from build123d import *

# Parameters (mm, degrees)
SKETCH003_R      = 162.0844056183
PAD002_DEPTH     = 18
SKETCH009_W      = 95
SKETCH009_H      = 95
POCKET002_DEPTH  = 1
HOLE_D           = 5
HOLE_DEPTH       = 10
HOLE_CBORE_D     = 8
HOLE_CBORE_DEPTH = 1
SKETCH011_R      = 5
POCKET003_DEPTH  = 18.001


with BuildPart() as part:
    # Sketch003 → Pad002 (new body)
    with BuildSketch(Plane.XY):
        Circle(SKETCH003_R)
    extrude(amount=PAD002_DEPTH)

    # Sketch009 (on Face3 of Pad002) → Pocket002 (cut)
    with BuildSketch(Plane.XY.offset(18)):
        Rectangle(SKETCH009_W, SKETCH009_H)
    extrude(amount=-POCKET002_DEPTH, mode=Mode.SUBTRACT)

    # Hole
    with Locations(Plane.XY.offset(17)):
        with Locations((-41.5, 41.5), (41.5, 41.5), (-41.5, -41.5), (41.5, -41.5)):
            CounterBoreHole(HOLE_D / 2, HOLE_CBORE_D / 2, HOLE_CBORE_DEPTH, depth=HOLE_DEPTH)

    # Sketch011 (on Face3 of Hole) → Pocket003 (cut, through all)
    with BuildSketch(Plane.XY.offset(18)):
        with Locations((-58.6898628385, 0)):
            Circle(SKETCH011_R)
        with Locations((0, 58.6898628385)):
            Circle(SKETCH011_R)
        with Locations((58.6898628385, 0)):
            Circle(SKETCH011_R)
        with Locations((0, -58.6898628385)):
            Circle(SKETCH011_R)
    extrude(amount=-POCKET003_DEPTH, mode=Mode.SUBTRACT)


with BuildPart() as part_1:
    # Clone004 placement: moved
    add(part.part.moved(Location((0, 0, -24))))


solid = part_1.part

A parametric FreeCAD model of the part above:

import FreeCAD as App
import Part
import Sketcher

doc = App.newDocument("Part")
body = doc.addObject("PartDesign::Body", "Body")

# Sketch on XY plane
sketch1 = body.newObject("Sketcher::SketchObject", "Sketch")
sketch1.AttachmentSupport = (doc.getObject("XY_Plane"), [""])
sketch1.MapMode = "FlatFace"
sketch1.addGeometry(Part.Circle(App.Vector(0, 0, 0), App.Vector(0, 0, 1), 162.084406), False)
sketch1.addConstraint([
    Sketcher.Constraint("Coincident", 0, 3, -1, 1),
    Sketcher.Constraint("Diameter", 0, 324.168811),
])
pad1 = body.newObject("PartDesign::Pad", "Pad")
pad1.Profile = sketch1
pad1.Length = 18

# Sketch on XY plane
sketch2 = body.newObject("Sketcher::SketchObject", "Sketch001")
sketch2.AttachmentSupport = (doc.getObject("XY_Plane"), [""])
sketch2.MapMode = "FlatFace"
sketch2.AttachmentOffset = App.Placement(App.Vector(0, 0, 18), App.Rotation())
sketch2.addGeometry([
    Part.LineSegment(App.Vector(-47.5, 47.5, 0), App.Vector(-47.5, -47.5, 0)),
    Part.LineSegment(App.Vector(-47.5, -47.5, 0), App.Vector(47.5, -47.5, 0)),
    Part.LineSegment(App.Vector(47.5, -47.5, 0), App.Vector(47.5, 47.5, 0)),
    Part.LineSegment(App.Vector(47.5, 47.5, 0), App.Vector(-47.5, 47.5, 0)),
], False)
sketch2.addConstraint([
    Sketcher.Constraint("Coincident", 0, 2, 1, 1),
    Sketcher.Constraint("Coincident", 1, 2, 2, 1),
    Sketcher.Constraint("Coincident", 2, 2, 3, 1),
    Sketcher.Constraint("Coincident", 3, 2, 0, 1),
    Sketcher.Constraint("Vertical", 0),
    Sketcher.Constraint("Horizontal", 1),
    Sketcher.Constraint("Vertical", 2),
    Sketcher.Constraint("Horizontal", 3),
    Sketcher.Constraint("Symmetric", 0, 2, 2, 2, -1, 1),
    Sketcher.Constraint("Equal", 3, 0),
    Sketcher.Constraint("DistanceX", 1, 1, 1, 2, 95.0),
])
pocket1 = body.newObject("PartDesign::Pocket", "Pocket")
pocket1.Profile = sketch2
pocket1.Length = 1

# Sketch on XY plane
sketch3 = body.newObject("Sketcher::SketchObject", "Sketch002")
sketch3.AttachmentSupport = (doc.getObject("XY_Plane"), [""])
sketch3.MapMode = "FlatFace"
sketch3.AttachmentOffset = App.Placement(App.Vector(0, 0, 17), App.Rotation())
sketch3.addGeometry([
    Part.Circle(App.Vector(-41.5, 41.5, 0), App.Vector(0, 0, 1), 2.5),
    Part.Circle(App.Vector(41.5, 41.5, 0), App.Vector(0, 0, 1), 2.5),
    Part.Circle(App.Vector(-41.5, -41.5, 0), App.Vector(0, 0, 1), 2.5),
    Part.Circle(App.Vector(41.5, -41.5, 0), App.Vector(0, 0, 1), 2.5),
], False)
sketch3.addConstraint([
    Sketcher.Constraint("Equal", 0, 1),
    Sketcher.Constraint("Equal", 1, 2),
    Sketcher.Constraint("Equal", 2, 3),
    Sketcher.Constraint("Symmetric", 1, 3, 2, 3, -1, 1),
    Sketcher.Constraint("Symmetric", 0, 3, 3, 3, -1, 1),
    Sketcher.Constraint("Symmetric", 0, 3, 1, 3, -2),
    Sketcher.Constraint("Diameter", 0, 5.0),
    Sketcher.Constraint("DistanceX", 0, 3, 1, 3, 83.0),
    Sketcher.Constraint("DistanceY", 2, 3, 0, 3, 83.0),
])
doc.recompute()
hole = body.newObject("PartDesign::Hole", "Hole")
hole.Profile = sketch3
hole.ThreadType = "None"
hole.Diameter = 5
hole.DepthType = "Dimension"
hole.Depth = 10
hole.DrillPoint = "Flat"
hole.HoleCutType = "Counterbore"
hole.HoleCutDiameter = 8
hole.HoleCutDepth = 1

# Sketch on XY plane
sketch4 = body.newObject("Sketcher::SketchObject", "Sketch003")
sketch4.AttachmentSupport = (doc.getObject("XY_Plane"), [""])
sketch4.MapMode = "FlatFace"
sketch4.AttachmentOffset = App.Placement(App.Vector(0, 0, 18), App.Rotation())
sketch4.addGeometry([
    Part.Circle(App.Vector(-58.689863, 0, 0), App.Vector(0, 0, 1), 5),
    Part.Circle(App.Vector(0, 58.689863, 0), App.Vector(0, 0, 1), 5),
    Part.Circle(App.Vector(58.689863, 0, 0), App.Vector(0, 0, 1), 5),
    Part.Circle(App.Vector(0, -58.689863, 0), App.Vector(0, 0, 1), 5),
], False)
sketch4.addConstraint([
    Sketcher.Constraint("Equal", 0, 1),
    Sketcher.Constraint("Equal", 1, 2),
    Sketcher.Constraint("Equal", 2, 3),
    Sketcher.Constraint("Symmetric", 0, 3, 2, 3, -1, 1),
    Sketcher.Constraint("Symmetric", 1, 3, 3, 3, -1, 1),
    Sketcher.Constraint("PointOnObject", 0, 3, -1),
    Sketcher.Constraint("PointOnObject", 1, 3, -2),
    Sketcher.Constraint("Diameter", 0, 10.0),
    Sketcher.Constraint("DistanceX", 0, 3, -1, 1, 58.689863),
    Sketcher.Constraint("DistanceY", -1, 1, 1, 3, 58.689863),
])
pocket2 = body.newObject("PartDesign::Pocket", "Pocket001")
pocket2.Profile = sketch4
pocket2.Type = "ThroughAll"
body2 = doc.addObject("PartDesign::Body", "Body001")
doc.recompute()

body.Placement = App.Placement(App.Vector(0, 0, -24), App.Rotation(App.Vector(0, 0, 1), 0))
boolean = body2.newObject("PartDesign::Boolean", "Boolean")
boolean.Type = "Fuse"
boolean.addObjects([body])

doc.recompute()
